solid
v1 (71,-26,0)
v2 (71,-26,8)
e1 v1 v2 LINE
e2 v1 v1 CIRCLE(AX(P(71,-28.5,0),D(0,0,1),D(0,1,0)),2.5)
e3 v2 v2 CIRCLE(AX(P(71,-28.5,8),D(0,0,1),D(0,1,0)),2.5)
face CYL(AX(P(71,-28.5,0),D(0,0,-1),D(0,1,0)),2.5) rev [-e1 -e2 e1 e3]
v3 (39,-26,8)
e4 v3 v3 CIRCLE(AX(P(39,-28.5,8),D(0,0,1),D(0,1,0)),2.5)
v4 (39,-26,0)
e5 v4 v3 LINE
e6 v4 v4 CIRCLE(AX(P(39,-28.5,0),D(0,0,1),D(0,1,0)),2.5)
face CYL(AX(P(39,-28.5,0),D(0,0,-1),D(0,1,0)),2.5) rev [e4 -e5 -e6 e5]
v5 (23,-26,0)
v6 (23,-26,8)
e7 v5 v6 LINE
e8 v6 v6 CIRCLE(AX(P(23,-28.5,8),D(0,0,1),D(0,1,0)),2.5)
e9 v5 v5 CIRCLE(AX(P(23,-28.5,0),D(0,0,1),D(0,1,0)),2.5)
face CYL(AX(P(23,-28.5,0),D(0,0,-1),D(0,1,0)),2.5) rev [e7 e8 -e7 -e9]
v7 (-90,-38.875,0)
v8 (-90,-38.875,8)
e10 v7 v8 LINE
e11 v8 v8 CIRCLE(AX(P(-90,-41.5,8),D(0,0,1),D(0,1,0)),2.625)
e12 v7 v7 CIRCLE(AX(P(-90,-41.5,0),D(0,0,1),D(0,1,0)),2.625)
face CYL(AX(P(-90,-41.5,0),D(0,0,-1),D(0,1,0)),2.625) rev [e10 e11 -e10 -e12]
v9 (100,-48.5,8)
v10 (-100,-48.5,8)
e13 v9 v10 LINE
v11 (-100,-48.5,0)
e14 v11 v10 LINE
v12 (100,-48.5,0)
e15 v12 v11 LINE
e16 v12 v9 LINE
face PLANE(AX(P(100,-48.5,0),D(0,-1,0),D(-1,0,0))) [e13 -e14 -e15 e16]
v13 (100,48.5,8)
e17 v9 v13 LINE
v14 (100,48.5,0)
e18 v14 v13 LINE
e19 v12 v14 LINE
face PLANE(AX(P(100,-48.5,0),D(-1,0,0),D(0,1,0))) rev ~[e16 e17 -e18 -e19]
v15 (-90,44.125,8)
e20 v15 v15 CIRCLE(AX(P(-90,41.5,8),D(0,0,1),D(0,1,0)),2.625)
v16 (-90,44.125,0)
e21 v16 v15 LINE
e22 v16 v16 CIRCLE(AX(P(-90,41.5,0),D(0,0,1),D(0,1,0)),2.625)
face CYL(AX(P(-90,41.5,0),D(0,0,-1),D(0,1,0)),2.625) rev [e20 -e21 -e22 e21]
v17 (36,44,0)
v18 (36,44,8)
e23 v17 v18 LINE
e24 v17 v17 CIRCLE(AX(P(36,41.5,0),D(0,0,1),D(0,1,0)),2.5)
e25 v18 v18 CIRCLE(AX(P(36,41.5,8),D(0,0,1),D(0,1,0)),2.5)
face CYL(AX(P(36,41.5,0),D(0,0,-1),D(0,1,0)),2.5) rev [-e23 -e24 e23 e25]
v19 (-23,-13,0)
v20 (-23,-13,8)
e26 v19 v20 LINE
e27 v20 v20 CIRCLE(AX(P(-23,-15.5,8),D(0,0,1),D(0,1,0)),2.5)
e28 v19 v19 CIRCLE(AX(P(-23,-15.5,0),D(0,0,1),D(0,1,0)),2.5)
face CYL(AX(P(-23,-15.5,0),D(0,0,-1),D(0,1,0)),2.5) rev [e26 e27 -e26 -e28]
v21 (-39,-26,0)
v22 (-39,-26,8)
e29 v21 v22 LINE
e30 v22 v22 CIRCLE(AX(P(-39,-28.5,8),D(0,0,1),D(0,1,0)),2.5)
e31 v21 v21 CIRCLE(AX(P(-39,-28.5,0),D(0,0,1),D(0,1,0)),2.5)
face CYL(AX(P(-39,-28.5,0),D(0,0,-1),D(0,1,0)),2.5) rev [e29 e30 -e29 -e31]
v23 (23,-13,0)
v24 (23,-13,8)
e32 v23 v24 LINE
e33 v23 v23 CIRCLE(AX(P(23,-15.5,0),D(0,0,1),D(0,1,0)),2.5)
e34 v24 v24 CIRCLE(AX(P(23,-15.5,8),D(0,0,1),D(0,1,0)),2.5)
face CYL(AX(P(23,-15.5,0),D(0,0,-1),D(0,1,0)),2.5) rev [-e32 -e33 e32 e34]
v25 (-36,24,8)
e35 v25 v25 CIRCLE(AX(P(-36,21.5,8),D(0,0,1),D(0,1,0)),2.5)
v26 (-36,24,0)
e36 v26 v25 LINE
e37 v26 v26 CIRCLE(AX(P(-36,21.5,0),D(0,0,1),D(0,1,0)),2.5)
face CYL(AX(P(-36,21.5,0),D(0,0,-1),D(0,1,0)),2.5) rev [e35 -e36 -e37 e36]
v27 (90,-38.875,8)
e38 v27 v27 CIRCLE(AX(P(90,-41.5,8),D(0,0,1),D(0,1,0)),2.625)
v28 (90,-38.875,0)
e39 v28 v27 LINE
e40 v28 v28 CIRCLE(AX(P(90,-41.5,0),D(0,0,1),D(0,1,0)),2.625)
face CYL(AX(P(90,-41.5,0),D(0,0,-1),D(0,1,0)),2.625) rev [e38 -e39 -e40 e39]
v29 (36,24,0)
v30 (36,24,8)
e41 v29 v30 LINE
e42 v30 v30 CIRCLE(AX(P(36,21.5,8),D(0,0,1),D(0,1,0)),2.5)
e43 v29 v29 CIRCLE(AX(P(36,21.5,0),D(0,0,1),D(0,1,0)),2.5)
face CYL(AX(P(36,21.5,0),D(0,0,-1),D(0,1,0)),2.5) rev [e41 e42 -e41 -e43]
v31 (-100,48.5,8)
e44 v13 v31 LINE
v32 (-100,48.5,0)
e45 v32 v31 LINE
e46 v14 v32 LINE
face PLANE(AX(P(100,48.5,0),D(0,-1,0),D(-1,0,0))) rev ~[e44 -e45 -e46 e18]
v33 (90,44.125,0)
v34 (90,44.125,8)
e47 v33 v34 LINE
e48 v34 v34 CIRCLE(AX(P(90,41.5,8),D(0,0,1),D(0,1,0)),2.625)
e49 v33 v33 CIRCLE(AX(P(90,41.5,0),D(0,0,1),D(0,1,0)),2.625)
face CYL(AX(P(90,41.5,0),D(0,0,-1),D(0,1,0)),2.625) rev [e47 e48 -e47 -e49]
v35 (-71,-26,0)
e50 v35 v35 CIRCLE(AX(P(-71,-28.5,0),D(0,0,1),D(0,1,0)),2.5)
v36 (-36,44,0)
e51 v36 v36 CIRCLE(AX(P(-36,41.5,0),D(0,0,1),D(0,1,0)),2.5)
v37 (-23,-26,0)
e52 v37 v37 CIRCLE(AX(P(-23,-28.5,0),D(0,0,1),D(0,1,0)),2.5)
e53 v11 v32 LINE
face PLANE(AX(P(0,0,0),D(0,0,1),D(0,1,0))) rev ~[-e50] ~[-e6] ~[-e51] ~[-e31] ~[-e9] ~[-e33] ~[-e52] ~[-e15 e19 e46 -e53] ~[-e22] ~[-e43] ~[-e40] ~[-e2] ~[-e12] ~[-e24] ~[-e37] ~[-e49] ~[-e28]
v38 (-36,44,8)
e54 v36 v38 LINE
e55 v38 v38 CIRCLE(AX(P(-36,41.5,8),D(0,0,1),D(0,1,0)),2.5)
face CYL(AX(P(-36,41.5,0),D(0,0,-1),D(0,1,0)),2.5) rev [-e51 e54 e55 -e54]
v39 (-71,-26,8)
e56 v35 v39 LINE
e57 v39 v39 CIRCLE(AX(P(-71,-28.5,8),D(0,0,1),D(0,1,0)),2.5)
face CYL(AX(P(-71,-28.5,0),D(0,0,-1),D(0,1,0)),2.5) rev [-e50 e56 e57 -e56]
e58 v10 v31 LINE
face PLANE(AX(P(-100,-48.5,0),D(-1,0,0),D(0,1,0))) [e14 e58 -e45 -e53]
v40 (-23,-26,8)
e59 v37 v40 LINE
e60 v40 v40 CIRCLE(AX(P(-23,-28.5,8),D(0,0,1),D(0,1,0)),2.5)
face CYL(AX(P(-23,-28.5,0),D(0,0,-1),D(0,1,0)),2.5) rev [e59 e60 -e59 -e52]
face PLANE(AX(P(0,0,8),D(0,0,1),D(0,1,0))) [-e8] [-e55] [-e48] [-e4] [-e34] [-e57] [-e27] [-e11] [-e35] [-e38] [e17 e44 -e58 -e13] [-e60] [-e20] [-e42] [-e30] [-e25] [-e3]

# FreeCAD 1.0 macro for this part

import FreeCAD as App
import Part
import Sketcher

V = App.Vector

doc = App.newDocument("Part")
body = doc.addObject("PartDesign::Body", "Body")

# Sketch on XY plane
sketch1 = body.newObject("Sketcher::SketchObject", "Sketch")
sketch1.AttachmentSupport = (doc.getObject("XY_Plane"), [""])
sketch1.MapMode = "FlatFace"
sketch1.addGeometry(Part.LineSegment(V(-100, -48.5, 0), V(100, -48.5, 0)), False)
sketch1.addGeometry(Part.LineSegment(V(100, -48.5, 0), V(100, 48.5, 0)), False)
sketch1.addGeometry(Part.LineSegment(V(100, 48.5, 0), V(-100, 48.5, 0)), False)
sketch1.addGeometry(Part.LineSegment(V(-100, 48.5, 0), V(-100, -48.5, 0)), False)
sketch1.addGeometry(Part.Circle(V(90, -41.5, 0), V(0, 0, 1), 2.625), False)
sketch1.addGeometry(Part.Circle(V(71, -28.5, 0), V(0, 0, 1), 2.5), False)
sketch1.addGeometry(Part.Circle(V(39, -28.5, 0), V(0, 0, 1), 2.5), False)
sketch1.addGeometry(Part.Circle(V(23, -28.5, 0), V(0, 0, 1), 2.5), False)
sketch1.addGeometry(Part.Circle(V(23, -15.5, 0), V(0, 0, 1), 2.5), False)
sketch1.addGeometry(Part.Circle(V(90, 41.5, 0), V(0, 0, 1), 2.625), False)
sketch1.addGeometry(Part.Circle(V(36, 21.5, 0), V(0, 0, 1), 2.5), False)
sketch1.addGeometry(Part.Circle(V(36, 41.5, 0), V(0, 0, 1), 2.5), False)
sketch1.addGeometry(Part.Circle(V(-23, -28.5, 0), V(0, 0, 1), 2.5), False)
sketch1.addGeometry(Part.Circle(V(-39, -28.5, 0), V(0, 0, 1), 2.5), False)
sketch1.addGeometry(Part.Circle(V(-23, -15.5, 0), V(0, 0, 1), 2.5), False)
sketch1.addGeometry(Part.Circle(V(-90, -41.5, 0), V(0, 0, 1), 2.625), False)
sketch1.addGeometry(Part.Circle(V(-71, -28.5, 0), V(0, 0, 1), 2.5), False)
sketch1.addGeometry(Part.Circle(V(-36, 21.5, 0), V(0, 0, 1), 2.5), False)
sketch1.addGeometry(Part.Circle(V(-36, 41.5, 0), V(0, 0, 1), 2.5), False)
sketch1.addGeometry(Part.Circle(V(-90, 41.5, 0), V(0, 0, 1), 2.625), False)
sketch1.addConstraint(Sketcher.Constraint("Coincident", 0, 2, 1, 1))
sketch1.addConstraint(Sketcher.Constraint("Coincident", 1, 2, 2, 1))
sketch1.addConstraint(Sketcher.Constraint("Coincident", 2, 2, 3, 1))
sketch1.addConstraint(Sketcher.Constraint("Coincident", 3, 2, 0, 1))
sketch1.addConstraint(Sketcher.Constraint("Horizontal", 0))
sketch1.addConstraint(Sketcher.Constraint("Vertical", 1))
sketch1.addConstraint(Sketcher.Constraint("Horizontal", 2))
sketch1.addConstraint(Sketcher.Constraint("Vertical", 3))
sketch1.addConstraint(Sketcher.Constraint("Equal", 5, 6))
sketch1.addConstraint(Sketcher.Constraint("Equal", 6, 7))
sketch1.addConstraint(Sketcher.Constraint("Equal", 7, 8))
sketch1.addConstraint(Sketcher.Constraint("Equal", 4, 9))
sketch1.addConstraint(Sketcher.Constraint("Equal", 8, 10))
sketch1.addConstraint(Sketcher.Constraint("Equal", 10, 11))
sketch1.addConstraint(Sketcher.Constraint("Equal", 11, 12))
sketch1.addConstraint(Sketcher.Constraint("Equal", 12, 13))
sketch1.addConstraint(Sketcher.Constraint("Equal", 13, 14))
sketch1.addConstraint(Sketcher.Constraint("Equal", 9, 15))
sketch1.addConstraint(Sketcher.Constraint("Equal", 14, 16))
sketch1.addConstraint(Sketcher.Constraint("Equal", 16, 17))
sketch1.addConstraint(Sketcher.Constraint("Equal", 17, 18))
sketch1.addConstraint(Sketcher.Constraint("Equal", 15, 19))
sketch1.addConstraint(Sketcher.Constraint("Symmetric", 9, 3, 15, 3, -1, 1))
sketch1.addConstraint(Sketcher.Constraint("Symmetric", 4, 3, 19, 3, -1, 1))
sketch1.addConstraint(Sketcher.Constraint("Symmetric", 0, 2, 2, 2, -1, 1))
sketch1.addConstraint(Sketcher.Constraint("Symmetric", 7, 3, 12, 3, -2))
sketch1.addConstraint(Sketcher.Constraint("Symmetric", 6, 3, 13, 3, -2))
sketch1.addConstraint(Sketcher.Constraint("Symmetric", 8, 3, 14, 3, -2))
sketch1.addConstraint(Sketcher.Constraint("Symmetric", 4, 3, 15, 3, -2))
sketch1.addConstraint(Sketcher.Constraint("Symmetric", 5, 3, 16, 3, -2))
sketch1.addConstraint(Sketcher.Constraint("Symmetric", 10, 3, 17, 3, -2))
sketch1.addConstraint(Sketcher.Constraint("Symmetric", 11, 3, 18, 3, -2))
sketch1.addConstraint(Sketcher.Constraint("Horizontal", 5, 3, 6, 3))
sketch1.addConstraint(Sketcher.Constraint("Horizontal", 6, 3, 7, 3))
sketch1.addConstraint(Sketcher.Constraint("Horizontal", 9, 3, 11, 3))
sketch1.addConstraint(Sketcher.Constraint("Vertical", 7, 3, 8, 3))
sketch1.addConstraint(Sketcher.Constraint("Vertical", 10, 3, 11, 3))
sketch1.addConstraint(Sketcher.Constraint("Diameter", 5, 5.0))
sketch1.addConstraint(Sketcher.Constraint("Diameter", 4, 5.25))
sketch1.addConstraint(Sketcher.Constraint("DistanceX", 0, 1, 0, 2, 200.0))
sketch1.addConstraint(Sketcher.Constraint("DistanceY", 1, 1, 1, 2, 97.0))
sketch1.addConstraint(Sketcher.Constraint("DistanceX", -1, 1, 4, 3, 90.0))
sketch1.addConstraint(Sketcher.Constraint("DistanceX", -1, 1, 5, 3, 71.0))
sketch1.addConstraint(Sketcher.Constraint("DistanceX", -1, 1, 6, 3, 39.0))
sketch1.addConstraint(Sketcher.Constraint("DistanceX", -1, 1, 7, 3, 23.0))
sketch1.addConstraint(Sketcher.Constraint("DistanceX", -1, 1, 10, 3, 36.0))
sketch1.addConstraint(Sketcher.Constraint("DistanceY", 4, 3, 5, 3, 13.0))
sketch1.addConstraint(Sketcher.Constraint("DistanceY", 7, 3, 8, 3, 13.0))
sketch1.addConstraint(Sketcher.Constraint("DistanceY", 5, 3, 9, 3, 70.0))
sketch1.addConstraint(Sketcher.Constraint("DistanceY", 8, 3, 10, 3, 37.0))
pad1 = body.newObject("PartDesign::Pad", "Pad")
pad1.Profile = sketch1
pad1.Length = 8

doc.recompute()
